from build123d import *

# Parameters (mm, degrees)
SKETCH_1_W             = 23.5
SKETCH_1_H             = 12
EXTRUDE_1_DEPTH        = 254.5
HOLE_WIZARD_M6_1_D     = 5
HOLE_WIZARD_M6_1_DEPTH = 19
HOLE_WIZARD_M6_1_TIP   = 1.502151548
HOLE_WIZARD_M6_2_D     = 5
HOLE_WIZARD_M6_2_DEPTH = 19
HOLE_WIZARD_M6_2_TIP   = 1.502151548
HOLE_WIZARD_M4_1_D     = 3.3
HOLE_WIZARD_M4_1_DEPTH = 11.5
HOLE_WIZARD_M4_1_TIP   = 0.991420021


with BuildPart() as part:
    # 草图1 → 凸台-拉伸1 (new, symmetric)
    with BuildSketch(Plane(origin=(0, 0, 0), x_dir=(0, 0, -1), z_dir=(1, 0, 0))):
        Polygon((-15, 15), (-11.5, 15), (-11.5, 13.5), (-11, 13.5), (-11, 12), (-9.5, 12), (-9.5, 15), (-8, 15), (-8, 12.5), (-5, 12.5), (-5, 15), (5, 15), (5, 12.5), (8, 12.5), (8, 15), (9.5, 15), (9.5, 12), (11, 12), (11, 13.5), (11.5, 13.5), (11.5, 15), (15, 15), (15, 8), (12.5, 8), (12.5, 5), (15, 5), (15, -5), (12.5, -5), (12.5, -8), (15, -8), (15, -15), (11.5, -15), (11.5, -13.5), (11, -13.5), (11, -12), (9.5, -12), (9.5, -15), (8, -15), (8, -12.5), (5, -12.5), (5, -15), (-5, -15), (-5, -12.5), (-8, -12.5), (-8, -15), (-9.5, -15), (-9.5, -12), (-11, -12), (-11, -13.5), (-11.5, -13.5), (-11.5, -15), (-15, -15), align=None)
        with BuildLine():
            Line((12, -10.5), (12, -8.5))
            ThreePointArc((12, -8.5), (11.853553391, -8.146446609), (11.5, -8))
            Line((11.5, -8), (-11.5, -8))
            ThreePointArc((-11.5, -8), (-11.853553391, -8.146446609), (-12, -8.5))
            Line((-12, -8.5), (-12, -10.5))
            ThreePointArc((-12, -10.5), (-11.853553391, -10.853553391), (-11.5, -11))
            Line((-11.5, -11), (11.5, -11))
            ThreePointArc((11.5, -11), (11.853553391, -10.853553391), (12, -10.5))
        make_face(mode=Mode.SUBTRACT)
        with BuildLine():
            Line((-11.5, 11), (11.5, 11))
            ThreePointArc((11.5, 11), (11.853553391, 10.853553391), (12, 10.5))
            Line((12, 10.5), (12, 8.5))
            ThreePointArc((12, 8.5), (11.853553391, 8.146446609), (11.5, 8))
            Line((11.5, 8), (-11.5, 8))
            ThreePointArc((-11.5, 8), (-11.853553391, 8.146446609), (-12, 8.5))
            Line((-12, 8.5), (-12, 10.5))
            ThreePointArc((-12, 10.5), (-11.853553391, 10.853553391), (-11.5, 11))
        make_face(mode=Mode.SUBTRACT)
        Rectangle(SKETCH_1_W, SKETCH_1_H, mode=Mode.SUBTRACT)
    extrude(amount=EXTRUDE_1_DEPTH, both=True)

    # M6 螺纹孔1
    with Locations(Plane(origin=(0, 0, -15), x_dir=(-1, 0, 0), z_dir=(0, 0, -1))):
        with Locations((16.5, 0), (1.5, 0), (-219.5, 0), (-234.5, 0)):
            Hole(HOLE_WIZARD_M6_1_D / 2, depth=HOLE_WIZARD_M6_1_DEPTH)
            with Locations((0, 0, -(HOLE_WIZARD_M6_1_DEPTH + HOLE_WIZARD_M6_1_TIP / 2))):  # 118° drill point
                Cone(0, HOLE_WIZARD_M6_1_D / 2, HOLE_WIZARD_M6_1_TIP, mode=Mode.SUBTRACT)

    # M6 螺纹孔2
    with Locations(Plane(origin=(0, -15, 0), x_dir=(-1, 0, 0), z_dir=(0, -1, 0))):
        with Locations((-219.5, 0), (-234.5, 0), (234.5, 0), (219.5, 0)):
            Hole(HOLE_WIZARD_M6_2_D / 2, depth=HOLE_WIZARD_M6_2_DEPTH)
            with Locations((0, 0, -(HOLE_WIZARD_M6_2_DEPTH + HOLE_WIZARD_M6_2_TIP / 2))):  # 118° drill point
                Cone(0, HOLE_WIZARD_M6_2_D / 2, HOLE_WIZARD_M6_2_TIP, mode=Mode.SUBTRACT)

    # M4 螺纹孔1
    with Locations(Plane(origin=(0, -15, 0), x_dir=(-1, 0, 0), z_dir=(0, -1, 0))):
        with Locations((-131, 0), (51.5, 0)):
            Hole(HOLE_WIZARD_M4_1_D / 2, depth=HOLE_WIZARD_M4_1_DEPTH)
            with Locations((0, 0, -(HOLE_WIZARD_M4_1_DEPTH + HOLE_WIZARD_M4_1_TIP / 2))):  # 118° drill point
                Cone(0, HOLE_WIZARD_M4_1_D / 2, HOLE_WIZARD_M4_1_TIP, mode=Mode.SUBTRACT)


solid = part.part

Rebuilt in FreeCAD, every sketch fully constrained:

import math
import FreeCAD as App
import Part
import Sketcher


def add_polygon(sketch, points):
    """Adds a closed chain of lines whose ends are joined by coincident constraints."""
    first, n = sketch.GeometryCount, len(points)
    for a, b in zip(points, points[1:] + points[:1]):
        sketch.addGeometry(Part.LineSegment(App.Vector(*a, 0), App.Vector(*b, 0)), False)
    for i in range(n):
        sketch.addConstraint(Sketcher.Constraint("Coincident", first + i, 2, first + (i + 1) % n, 1))

doc = App.newDocument("Part")
body = doc.addObject("PartDesign::Body", "Body")

# Sketch on YZ plane
sketch1 = body.newObject("Sketcher::SketchObject", "Sketch")
sketch1.AttachmentSupport = (doc.getObject("YZ_Plane"), [""])
sketch1.MapMode = "FlatFace"
add_polygon(sketch1, [(15, 11.5), (15, 15), (-15, 15), (-15, 11.5), (-13.5, 11.5), (-13.5, 11), (-12, 11), (-12, 9.5), (-15, 9.5), (-15, 8), (-12.5, 8), (-12.5, 5), (-15, 5), (-15, -5), (-12.5, -5), (-12.5, -8), (-15, -8), (-15, -9.5), (-12, -9.5), (-12, -11), (-13.5, -11), (-13.5, -11.5), (-15, -11.5), (-15, -15), (-8, -15), (-8, -12.5), (-5, -12.5), (-5, -15), (5, -15), (5, -12.5), (8, -12.5), (8, -15), (15, -15), (15, -11.5), (13.5, -11.5), (13.5, -11), (12, -11), (12, -9.5), (15, -9.5), (15, -8), (12.5, -8), (12.5, -5), (15, -5), (15, 5), (12.5, 5), (12.5, 8), (15, 8), (15, 9.5), (12, 9.5), (12, 11), (13.5, 11), (13.5, 11.5)])  # lines 0-51
sketch1.addGeometry(Part.ArcOfCircle(Part.Circle(App.Vector(-10.5, -11.5, 0), App.Vector(0, 0, 1), 0.5), math.radians(180), math.radians(270)), False)  # 52
sketch1.addGeometry(Part.LineSegment(App.Vector(-11, -11.5, 0), App.Vector(-11, 11.5, 0)), False)  # 53
sketch1.addGeometry(Part.ArcOfCircle(Part.Circle(App.Vector(-10.5, 11.5, 0), App.Vector(0, 0, 1), 0.5), math.radians(90), math.radians(180)), False)  # 54
sketch1.addGeometry(Part.LineSegment(App.Vector(-10.5, 12, 0), App.Vector(-8.5, 12, 0)), False)  # 55
sketch1.addGeometry(Part.ArcOfCircle(Part.Circle(App.Vector(-8.5, 11.5, 0), App.Vector(0, 0, 1), 0.5), math.radians(0), math.radians(90)), False)  # 56
sketch1.addGeometry(Part.LineSegment(App.Vector(-8, 11.5, 0), App.Vector(-8, -11.5, 0)), False)  # 57
sketch1.addGeometry(Part.ArcOfCircle(Part.Circle(App.Vector(-8.5, -11.5, 0), App.Vector(0, 0, 1), 0.5), math.radians(-90), math.radians(0)), False)  # 58
sketch1.addGeometry(Part.LineSegment(App.Vector(-8.5, -12, 0), App.Vector(-10.5, -12, 0)), False)  # 59
add_polygon(sketch1, [(-6, 11.75), (6, 11.75), (6, -11.75), (-6, -11.75)])  # lines 60-63
sketch1.addGeometry(Part.LineSegment(App.Vector(11, 11.5, 0), App.Vector(11, -11.5, 0)), False)  # 64
sketch1.addGeometry(Part.ArcOfCircle(Part.Circle(App.Vector(10.5, -11.5, 0), App.Vector(0, 0, 1), 0.5), math.radians(-90), math.radians(0)), False)  # 65
sketch1.addGeometry(Part.LineSegment(App.Vector(10.5, -12, 0), App.Vector(8.5, -12, 0)), False)  # 66
sketch1.addGeometry(Part.ArcOfCircle(Part.Circle(App.Vector(8.5, -11.5, 0), App.Vector(0, 0, 1), 0.5), math.radians(180), math.radians(270)), False)  # 67
sketch1.addGeometry(Part.LineSegment(App.Vector(8, -11.5, 0), App.Vector(8, 11.5, 0)), False)  # 68
sketch1.addGeometry(Part.ArcOfCircle(Part.Circle(App.Vector(8.5, 11.5, 0), App.Vector(0, 0, 1), 0.5), math.radians(90), math.radians(180)), False)  # 69
sketch1.addGeometry(Part.LineSegment(App.Vector(8.5, 12, 0), App.Vector(10.5, 12, 0)), False)  # 70
sketch1.addGeometry(Part.ArcOfCircle(Part.Circle(App.Vector(10.5, 11.5, 0), App.Vector(0, 0, 1), 0.5), math.radians(0), math.radians(90)), False)  # 71
sketch1.addConstraint([
    Sketcher.Constraint("Tangent", 52, 1, 53, 1),
    Sketcher.Constraint("Tangent", 53, 2, 54, 2),
    Sketcher.Constraint("Tangent", 54, 1, 55, 1),
    Sketcher.Constraint("Tangent", 55, 2, 56, 2),
    Sketcher.Constraint("Tangent", 56, 1, 57, 1),
    Sketcher.Constraint("Tangent", 57, 2, 58, 2),
    Sketcher.Constraint("Tangent", 58, 1, 59, 1),
    Sketcher.Constraint("Tangent", 59, 2, 52, 2),
    Sketcher.Constraint("Tangent", 64, 2, 65, 2),
    Sketcher.Constraint("Tangent", 65, 1, 66, 1),
    Sketcher.Constraint("Tangent", 66, 2, 67, 2),
    Sketcher.Constraint("Tangent", 67, 1, 68, 1),
    Sketcher.Constraint("Tangent", 68, 2, 69, 2),
    Sketcher.Constraint("Tangent", 69, 1, 70, 1),
    Sketcher.Constraint("Tangent", 70, 2, 71, 2),
    Sketcher.Constraint("Tangent", 71, 1, 64, 1),
    Sketcher.Constraint("Vertical", 0),
    Sketcher.Constraint("Horizontal", 1),
    Sketcher.Constraint("Vertical", 2),
    Sketcher.Constraint("Horizontal", 3),
    Sketcher.Constraint("Vertical", 4),
    Sketcher.Constraint("Horizontal", 5),
    Sketcher.Constraint("Vertical", 6),
    Sketcher.Constraint("Horizontal", 7),
    Sketcher.Constraint("Vertical", 8),
    Sketcher.Constraint("Horizontal", 9),
    Sketcher.Constraint("Vertical", 10),
    Sketcher.Constraint("Horizontal", 11),
    Sketcher.Constraint("Vertical", 12),
    Sketcher.Constraint("Horizontal", 13),
    Sketcher.Constraint("Vertical", 14),
    Sketcher.Constraint("Horizontal", 15),
    Sketcher.Constraint("Vertical", 16),
    Sketcher.Constraint("Horizontal", 17),
    Sketcher.Constraint("Vertical", 18),
    Sketcher.Constraint("Horizontal", 19),
    Sketcher.Constraint("Vertical", 20),
    Sketcher.Constraint("Horizontal", 21),
    Sketcher.Constraint("Vertical", 22),
    Sketcher.Constraint("Horizontal", 23),
    Sketcher.Constraint("Vertical", 24),
    Sketcher.Constraint("Horizontal", 25),
    Sketcher.Constraint("Vertical", 26),
    Sketcher.Constraint("Horizontal", 27),
    Sketcher.Constraint("Vertical", 28),
    Sketcher.Constraint("Horizontal", 29),
    Sketcher.Constraint("Vertical", 30),
    Sketcher.Constraint("Horizontal", 31),
    Sketcher.Constraint("Vertical", 32),
    Sketcher.Constraint("Horizontal", 33),
    Sketcher.Constraint("Vertical", 34),
    Sketcher.Constraint("Horizontal", 35),
    Sketcher.Constraint("Vertical", 36),
    Sketcher.Constraint("Horizontal", 37),
    Sketcher.Constraint("Vertical", 38),
    Sketcher.Constraint("Horizontal", 39),
    Sketcher.Constraint("Vertical", 40),
    Sketcher.Constraint("Horizontal", 41),
    Sketcher.Constraint("Vertical", 42),
    Sketcher.Constraint("Horizontal", 43),
    Sketcher.Constraint("Vertical", 44),
    Sketcher.Constraint("Horizontal", 45),
    Sketcher.Constraint("Vertical", 46),
    Sketcher.Constraint("Horizontal", 47),
    Sketcher.Constraint("Vertical", 48),
    Sketcher.Constraint("Horizontal", 49),
    Sketcher.Constraint("Vertical", 50),
    Sketcher.Constraint("Horizontal", 51),
    Sketcher.Constraint("Vertical", 53),
    Sketcher.Constraint("Horizontal", 55),
    Sketcher.Constraint("Vertical", 57),
    Sketcher.Constraint("Horizontal", 59),
    Sketcher.Constraint("Horizontal", 60),
    Sketcher.Constraint("Vertical", 61),
    Sketcher.Constraint("Horizontal", 62),
    Sketcher.Constraint("Vertical", 63),
    Sketcher.Constraint("Vertical", 64),
    Sketcher.Constraint("Horizontal", 66),
    Sketcher.Constraint("Vertical", 68),
    Sketcher.Constraint("Horizontal", 70),
    Sketcher.Constraint("Equal", 52, 54),
    Sketcher.Constraint("Equal", 54, 56),
    Sketcher.Constraint("Equal", 56, 58),
    Sketcher.Constraint("Equal", 58, 65),
    Sketcher.Constraint("Equal", 65, 67),
    Sketcher.Constraint("Equal", 67, 69),
    Sketcher.Constraint("Equal", 69, 71),
    Sketcher.Constraint("Symmetric", 54, 3, 65, 3, -1, 1),
    Sketcher.Constraint("Symmetric", 58, 3, 69, 3, -1, 1),
    Sketcher.Constraint("Symmetric", 0, 2, 22, 2, -1, 1),
    Sketcher.Constraint("Symmetric", 1, 2, 31, 2, -1, 1),
    Sketcher.Constraint("Symmetric", 3, 2, 33, 2, -1, 1),
    Sketcher.Constraint("Symmetric", 5, 2, 35, 2, -1, 1),
    Sketcher.Constraint("Symmetric", 7, 2, 37, 2, -1, 1),
    Sketcher.Constraint("Symmetric", 9, 2, 39, 2, -1, 1),
    Sketcher.Constraint("Symmetric", 11, 2, 41, 2, -1, 1),
    Sketcher.Constraint("Symmetric", 13, 2, 43, 2, -1, 1),
    Sketcher.Constraint("Symmetric", 15, 2, 45, 2, -1, 1),
    Sketcher.Constraint("Symmetric", 17, 2, 47, 2, -1, 1),
    Sketcher.Constraint("Symmetric", 19, 2, 49, 2, -1, 1),
    Sketcher.Constraint("Symmetric", 60, 2, 62, 2, -1, 1),
    Sketcher.Constraint("Symmetric", 25, 2, 28, 2, -2),
    Sketcher.Constraint("Symmetric", 21, 2, 32, 2, -2),
    Sketcher.Constraint("Symmetric", 19, 2, 34, 2, -2),
    Sketcher.Constraint("Symmetric", 17, 2, 36, 2, -2),
    Sketcher.Constraint("Symmetric", 15, 2, 38, 2, -2),
    Sketcher.Constraint("Symmetric", 13, 2, 40, 2, -2),
    Sketcher.Constraint("Horizontal", 58, 3, 65, 3),
    Sketcher.Constraint("Horizontal", 71, 3, 2, 2),
    Sketcher.Constraint("Horizontal", 23, 2, 26, 2),
    Sketcher.Constraint("Horizontal", 3, 2, 50, 2),
    Sketcher.Constraint("Vertical", 2, 2, 7, 2),
    Sketcher.Constraint("Vertical", 8, 2, 11, 2),
    Sketcher.Constraint("Vertical", 24, 2, 56, 1),
    Sketcher.Constraint("Vertical", 30, 2, 67, 1),
    Sketcher.Constraint("Equal", 3, 5),
    Sketcher.Constraint("Equal", 17, 25),
    Sketcher.Constraint("Equal", 51, 6),
    Sketcher.Constraint("Equal", 6, 8),
    Sketcher.Constraint("Equal", 47, 10),
    Sketcher.Constraint("Equal", 27, 12),
    Sketcher.Constraint("Equal", 45, 24),
    Sketcher.Constraint("Radius", 52, 0.5),
    Sketcher.Constraint("DistanceX", 1, 2, 1, 1, 30.0),
    Sketcher.Constraint("DistanceX", 7, 2, 7, 1, 3.0),
    Sketcher.Constraint("DistanceX", 23, 1, 23, 2, 7.0),
    Sketcher.Constraint("DistanceX", 55, 1, 55, 2, 2.0),
    Sketcher.Constraint("DistanceX", 60, 1, 60, 2, 12.0),
    Sketcher.Constraint("DistanceY", 53, 1, 53, 2, 23.0),
    Sketcher.Constraint("DistanceX", 9, 1, 9, 2, 2.5),
    Sketcher.Constraint("DistanceY", 0, 1, 0, 2, 3.5),
    Sketcher.Constraint("DistanceY", 61, 2, 61, 1, 23.5),
])
pad1 = body.newObject("PartDesign::Pad", "Pad")
pad1.Profile = sketch1
pad1.Length = 509
pad1.Midplane = True

# Sketch on XY plane
sketch2 = body.newObject("Sketcher::SketchObject", "Sketch001")
sketch2.AttachmentSupport = (doc.getObject("XY_Plane"), [""])
sketch2.MapMode = "FlatFace"
sketch2.AttachmentOffset = App.Placement(App.Vector(0, 0, -15), App.Rotation())
sketch2.addGeometry([
    Part.Circle(App.Vector(-16.5, 0, 0), App.Vector(0, 0, 1), 2.5),
    Part.Circle(App.Vector(-1.5, 0, 0), App.Vector(0, 0, 1), 2.5),
    Part.Circle(App.Vector(219.5, 0, 0), App.Vector(0, 0, 1), 2.5),
    Part.Circle(App.Vector(234.5, 0, 0), App.Vector(0, 0, 1), 2.5),
], False)
sketch2.addConstraint([
    Sketcher.Constraint("Equal", 0, 1),
    Sketcher.Constraint("Equal", 1, 2),
    Sketcher.Constraint("Equal", 2, 3),
    Sketcher.Constraint("PointOnObject", 0, 3, -1),
    Sketcher.Constraint("PointOnObject", 1, 3, -1),
    Sketcher.Constraint("PointOnObject", 2, 3, -1),
    Sketcher.Constraint("PointOnObject", 3, 3, -1),
    Sketcher.Constraint("Diameter", 0, 5.0),
    Sketcher.Constraint("DistanceX", 0, 3, 1, 3, 15.0),
    Sketcher.Constraint("DistanceX", 1, 3, 2, 3, 221.0),
    Sketcher.Constraint("DistanceX", 2, 3, 3, 3, 15.0),
    Sketcher.Constraint("DistanceX", 0, 3, -1, 1, 16.5),
])
doc.recompute()
hole = body.newObject("PartDesign::Hole", "Hole")
hole.Profile = sketch2
hole.ThreadType = "None"
hole.Diameter = 5
hole.DepthType = "Dimension"
hole.Depth = 19
hole.DrillPoint = "Angled"
hole.DrillPointAngle = 118
hole.Reversed = True

# Sketch on XZ plane
sketch3 = body.newObject("Sketcher::SketchObject", "Sketch002")
sketch3.AttachmentSupport = (doc.getObject("XZ_Plane"), [""])
sketch3.MapMode = "FlatFace"
sketch3.AttachmentOffset = App.Placement(App.Vector(0, 0, 15), App.Rotation())
sketch3.addGeometry([
    Part.Circle(App.Vector(219.5, 0, 0), App.Vector(0, 0, 1), 2.5),
    Part.Circle(App.Vector(234.5, 0, 0), App.Vector(0, 0, 1), 2.5),
    Part.Circle(App.Vector(-234.5, 0, 0), App.Vector(0, 0, 1), 2.5),
    Part.Circle(App.Vector(-219.5, 0, 0), App.Vector(0, 0, 1), 2.5),
], False)
sketch3.addConstraint([
    Sketcher.Constraint("Equal", 0, 1),
    Sketcher.Constraint("Equal", 1, 2),
    Sketcher.Constraint("Equal", 2, 3),
    Sketcher.Constraint("Symmetric", 1, 3, 2, 3, -1, 1),
    Sketcher.Constraint("Symmetric", 0, 3, 3, 3, -1, 1),
    Sketcher.Constraint("PointOnObject", 0, 3, -1),
    Sketcher.Constraint("PointOnObject", 1, 3, -1),
    Sketcher.Constraint("Diameter", 0, 5.0),
    Sketcher.Constraint("DistanceX", 0, 3, 1, 3, 15.0),
    Sketcher.Constraint("DistanceX", 2, 3, 0, 3, 454.0),
])
doc.recompute()
hole2 = body.newObject("PartDesign::Hole", "Hole001")
hole2.Profile = sketch3
hole2.ThreadType = "None"
hole2.Diameter = 5
hole2.DepthType = "Dimension"
hole2.Depth = 19
hole2.DrillPoint = "Angled"
hole2.DrillPointAngle = 118

# Sketch on XZ plane
sketch4 = body.newObject("Sketcher::SketchObject", "Sketch003")
sketch4.AttachmentSupport = (doc.getObject("XZ_Plane"), [""])
sketch4.MapMode = "FlatFace"
sketch4.AttachmentOffset = App.Placement(App.Vector(0, 0, 15), App.Rotation())
sketch4.addGeometry([
    Part.Circle(App.Vector(131, 0, 0), App.Vector(0, 0, 1), 1.6),
    Part.Circle(App.Vector(-51.5, 0, 0), App.Vector(0, 0, 1), 1.6),
], False)
sketch4.addConstraint([
    Sketcher.Constraint("Equal", 0, 1),
    Sketcher.Constraint("PointOnObject", 0, 3, -1),
    Sketcher.Constraint("PointOnObject", 1, 3, -1),
    Sketcher.Constraint("Diameter", 0, 3.3),
    Sketcher.Constraint("DistanceX", -1, 1, 0, 3, 131.0),
    Sketcher.Constraint("DistanceX", 1, 3, -1, 1, 51.5),
])
doc.recompute()
hole3 = body.newObject("PartDesign::Hole", "Hole002")
hole3.Profile = sketch4
hole3.ThreadType = "None"
hole3.Diameter = 3.3
hole3.DepthType = "Dimension"
hole3.Depth = 11.5
hole3.DrillPoint = "Angled"
hole3.DrillPointAngle = 118

doc.recompute()
